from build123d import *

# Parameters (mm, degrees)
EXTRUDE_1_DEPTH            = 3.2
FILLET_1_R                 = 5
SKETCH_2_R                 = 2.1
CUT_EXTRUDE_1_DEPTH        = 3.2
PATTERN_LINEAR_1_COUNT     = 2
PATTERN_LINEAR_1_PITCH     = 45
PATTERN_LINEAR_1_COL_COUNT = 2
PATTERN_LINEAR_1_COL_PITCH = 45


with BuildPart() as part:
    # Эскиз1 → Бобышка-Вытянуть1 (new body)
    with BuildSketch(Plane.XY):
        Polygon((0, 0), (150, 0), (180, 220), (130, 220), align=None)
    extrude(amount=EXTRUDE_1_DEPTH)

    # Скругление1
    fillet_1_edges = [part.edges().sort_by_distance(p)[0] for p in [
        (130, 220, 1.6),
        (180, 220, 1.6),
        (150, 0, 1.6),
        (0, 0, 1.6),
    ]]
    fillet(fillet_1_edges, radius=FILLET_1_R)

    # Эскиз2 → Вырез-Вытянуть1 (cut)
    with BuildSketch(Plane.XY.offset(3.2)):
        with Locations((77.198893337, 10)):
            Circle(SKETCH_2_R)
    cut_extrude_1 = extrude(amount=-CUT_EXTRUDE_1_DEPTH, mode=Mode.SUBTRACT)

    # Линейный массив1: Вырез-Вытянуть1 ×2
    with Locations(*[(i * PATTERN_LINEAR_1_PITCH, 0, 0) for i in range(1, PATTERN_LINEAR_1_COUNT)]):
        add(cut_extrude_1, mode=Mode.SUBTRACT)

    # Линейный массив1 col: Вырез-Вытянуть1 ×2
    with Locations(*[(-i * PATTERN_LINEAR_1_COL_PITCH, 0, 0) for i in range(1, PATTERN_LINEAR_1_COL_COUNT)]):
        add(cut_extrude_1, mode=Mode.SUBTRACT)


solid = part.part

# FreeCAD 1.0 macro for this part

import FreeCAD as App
import Part
import Sketcher
from FreeCAD import Vector


def edges_at(feature, points):
    """Names of the edges that pass closest to the given points."""
    edges = feature.Shape.Edges
    near = lambda p: min(range(len(edges)), key=lambda i: edges[i].distToShape(Part.Vertex(*p))[0])
    return sorted({f"Edge{near(p) + 1}" for p in points})

doc = App.newDocument("Part")
params = doc.addObject("Spreadsheet::Sheet", "Params")
for row, (alias, value) in enumerate([
    ("sketch1_width", "150 mm"),
    ("sketch1_width2", "50 mm"),
    ("pad1_length", "3.2 mm"),
    ("fillet_radius", "5 mm"),
    ("sketch2_diameter", "4.2 mm"),
    ("pocket1_length", "3.2 mm"),
    ("linearpattern_pitch", "45 mm"),
    ("linearpattern2_pitch", "45 mm"),
], start=1):
    params.set(f"A{row}", alias)
    params.set(f"B{row}", "=" + value)
    params.setAlias(f"B{row}", alias)

body = doc.addObject("PartDesign::Body", "Body")

sketch1 = body.newObject("Sketcher::SketchObject", "Sketch")
sketch1.AttachmentSupport = (doc.getObject("XY_Plane"), [""])
sketch1.MapMode = "FlatFace"
sketch1.addGeometry(Part.LineSegment(Vector(0, 0, 0), Vector(150, 0, 0)), False)
sketch1.addGeometry(Part.LineSegment(Vector(150, 0, 0), Vector(180, 220, 0)), False)
sketch1.addGeometry(Part.LineSegment(Vector(180, 220, 0), Vector(130, 220, 0)), False)
sketch1.addGeometry(Part.LineSegment(Vector(130, 220, 0), Vector(0, 0, 0)), False)
sketch1.addConstraint(Sketcher.Constraint("Coincident", 0, 2, 1, 1))
sketch1.addConstraint(Sketcher.Constraint("Coincident", 1, 2, 2, 1))
sketch1.addConstraint(Sketcher.Constraint("Coincident", 2, 2, 3, 1))
sketch1.addConstraint(Sketcher.Constraint("Coincident", 3, 2, 0, 1))
sketch1.addConstraint(Sketcher.Constraint("Horizontal", 0))
sketch1.addConstraint(Sketcher.Constraint("Horizontal", 2))
sketch1.addConstraint(Sketcher.Constraint("Coincident", 3, 2, -1, 1))
sketch1.addConstraint(Sketcher.Constraint("DistanceX", 0, 1, 0, 2, 150.0))
sketch1.addConstraint(Sketcher.Constraint("DistanceX", 2, 2, 2, 1, 50.0))
sketch1.addConstraint(Sketcher.Constraint("DistanceX", -1, 1, 1, 2, 180.0))
sketch1.addConstraint(Sketcher.Constraint("DistanceY", -1, 1, 1, 2, 220.0))
sketch1.setExpression("Constraints[7]", "Params.sketch1_width")
sketch1.setExpression("Constraints[8]", "Params.sketch1_width2")
pad1 = body.newObject("PartDesign::Pad", "Pad")
pad1.Profile = sketch1
pad1.setExpression("Length", "Params.pad1_length")
doc.recompute()

fillet = body.newObject("PartDesign::Fillet", "Fillet")
fillet.Base = (pad1, edges_at(pad1, [
    (130, 220, 1.6),
    (180, 220, 1.6),
    (150, 0, 1.6),
    (0, 0, 1.6),
]))
fillet.setExpression("Radius", "Params.fillet_radius")

sketch2 = body.newObject("Sketcher::SketchObject", "Sketch001")
sketch2.AttachmentSupport = (doc.getObject("XY_Plane"), [""])
sketch2.MapMode = "FlatFace"
sketch2.AttachmentOffset = App.Placement(Vector(0, 0, 3.2), App.Rotation())
sketch2.addGeometry(Part.Circle(Vector(77.2, 10, 0), Vector(0, 0, 1), 2.1), False)
sketch2.addConstraint(Sketcher.Constraint("Diameter", 0, 4.2))
sketch2.addConstraint(Sketcher.Constraint("DistanceY", -1, 1, 0, 3, 10.0))
sketch2.addConstraint(Sketcher.Constraint("DistanceX", -1, 1, 0, 3, 77.198893))
sketch2.setExpression("Constraints[0]", "Params.sketch2_diameter")
pocket1 = body.newObject("PartDesign::Pocket", "Pocket")
pocket1.Profile = sketch2
pocket1.setExpression("Length", "Params.pocket1_length")
doc.recompute()

linearpattern = body.newObject("PartDesign::LinearPattern", "LinearPattern")
linearpattern.Originals = [pocket1]
linearpattern.Direction = (doc.getObject("X_Axis"), [""])
linearpattern.Mode = "offset"
linearpattern.setExpression("Offset", "Params.linearpattern_pitch")
linearpattern.Occurrences = 2
body.Tip = linearpattern
doc.recompute()

linearpattern2 = body.newObject("PartDesign::LinearPattern", "LinearPattern001")
linearpattern2.Originals = [pocket1]
linearpattern2.Direction = (doc.getObject("X_Axis"), [""])
linearpattern2.Mode = "offset"
linearpattern2.setExpression("Offset", "Params.linearpattern2_pitch")
linearpattern2.Occurrences = 2
linearpattern2.Reversed = True
body.Tip = linearpattern2

doc.recompute()
